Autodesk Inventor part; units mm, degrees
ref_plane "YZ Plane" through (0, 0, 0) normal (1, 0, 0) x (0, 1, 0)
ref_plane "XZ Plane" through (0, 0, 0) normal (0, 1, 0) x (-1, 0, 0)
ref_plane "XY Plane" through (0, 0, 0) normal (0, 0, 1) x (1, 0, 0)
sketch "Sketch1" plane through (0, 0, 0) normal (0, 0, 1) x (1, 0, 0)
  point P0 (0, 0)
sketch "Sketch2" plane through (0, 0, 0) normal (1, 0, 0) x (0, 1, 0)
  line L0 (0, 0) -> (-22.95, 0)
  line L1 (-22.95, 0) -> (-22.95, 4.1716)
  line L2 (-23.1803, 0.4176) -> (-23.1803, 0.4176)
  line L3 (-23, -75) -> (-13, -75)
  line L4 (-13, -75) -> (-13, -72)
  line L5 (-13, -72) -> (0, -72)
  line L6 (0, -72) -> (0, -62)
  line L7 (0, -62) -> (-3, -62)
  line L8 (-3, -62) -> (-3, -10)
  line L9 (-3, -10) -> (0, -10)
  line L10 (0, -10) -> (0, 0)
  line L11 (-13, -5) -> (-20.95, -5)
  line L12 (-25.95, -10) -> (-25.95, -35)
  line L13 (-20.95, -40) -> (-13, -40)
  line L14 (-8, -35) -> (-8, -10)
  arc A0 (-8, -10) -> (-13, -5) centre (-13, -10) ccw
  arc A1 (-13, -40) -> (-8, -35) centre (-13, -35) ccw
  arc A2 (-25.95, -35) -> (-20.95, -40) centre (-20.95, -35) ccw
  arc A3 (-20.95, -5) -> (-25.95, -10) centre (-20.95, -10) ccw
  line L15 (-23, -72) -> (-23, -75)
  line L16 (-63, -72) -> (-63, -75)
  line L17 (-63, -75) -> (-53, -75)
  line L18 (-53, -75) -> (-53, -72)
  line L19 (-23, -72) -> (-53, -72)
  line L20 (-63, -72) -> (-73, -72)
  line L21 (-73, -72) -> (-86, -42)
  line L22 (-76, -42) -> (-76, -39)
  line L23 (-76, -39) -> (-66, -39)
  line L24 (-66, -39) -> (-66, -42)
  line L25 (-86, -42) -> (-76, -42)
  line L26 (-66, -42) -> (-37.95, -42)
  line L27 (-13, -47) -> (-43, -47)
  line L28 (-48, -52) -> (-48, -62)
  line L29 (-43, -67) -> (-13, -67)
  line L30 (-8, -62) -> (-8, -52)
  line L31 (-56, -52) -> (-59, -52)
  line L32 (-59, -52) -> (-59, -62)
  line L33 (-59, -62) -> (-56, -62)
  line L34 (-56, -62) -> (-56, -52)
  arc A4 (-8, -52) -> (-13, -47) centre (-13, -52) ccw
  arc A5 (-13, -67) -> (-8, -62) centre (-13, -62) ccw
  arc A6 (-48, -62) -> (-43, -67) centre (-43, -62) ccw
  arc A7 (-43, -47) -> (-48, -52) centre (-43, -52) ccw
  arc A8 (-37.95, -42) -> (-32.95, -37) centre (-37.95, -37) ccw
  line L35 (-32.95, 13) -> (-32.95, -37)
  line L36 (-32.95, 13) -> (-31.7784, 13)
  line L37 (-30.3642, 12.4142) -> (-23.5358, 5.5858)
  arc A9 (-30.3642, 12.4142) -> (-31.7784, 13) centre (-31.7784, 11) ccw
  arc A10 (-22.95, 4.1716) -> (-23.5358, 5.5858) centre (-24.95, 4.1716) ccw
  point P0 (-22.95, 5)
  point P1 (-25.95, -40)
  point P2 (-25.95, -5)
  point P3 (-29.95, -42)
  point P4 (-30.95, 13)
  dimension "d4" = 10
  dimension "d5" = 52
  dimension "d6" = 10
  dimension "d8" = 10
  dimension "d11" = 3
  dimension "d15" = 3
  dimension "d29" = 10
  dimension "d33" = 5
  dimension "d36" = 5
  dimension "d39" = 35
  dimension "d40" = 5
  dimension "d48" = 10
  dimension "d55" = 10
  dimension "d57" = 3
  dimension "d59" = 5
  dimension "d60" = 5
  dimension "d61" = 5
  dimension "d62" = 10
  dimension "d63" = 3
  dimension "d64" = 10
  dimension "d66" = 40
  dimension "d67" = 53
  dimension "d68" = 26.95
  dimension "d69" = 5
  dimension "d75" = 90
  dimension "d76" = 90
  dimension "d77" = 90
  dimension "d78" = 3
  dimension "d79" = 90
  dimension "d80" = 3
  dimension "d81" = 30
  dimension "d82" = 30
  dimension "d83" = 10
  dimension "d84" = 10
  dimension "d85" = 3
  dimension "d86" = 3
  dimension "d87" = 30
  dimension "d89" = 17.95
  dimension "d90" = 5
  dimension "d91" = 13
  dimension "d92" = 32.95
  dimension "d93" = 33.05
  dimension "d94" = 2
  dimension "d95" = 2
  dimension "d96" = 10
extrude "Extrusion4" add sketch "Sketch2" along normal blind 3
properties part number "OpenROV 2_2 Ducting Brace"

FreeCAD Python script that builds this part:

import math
import FreeCAD as App
import Part
import Sketcher
from FreeCAD import Vector
Q = App.Units.Quantity

doc = App.newDocument("Part")
params = doc.addObject("Spreadsheet::Sheet", "Params")
for row, (alias, value) in enumerate([
    ("sketch1_radius", "2 mm"),
    ("sketch1_radius2", "5 mm"),
    ("sketch1_width", "10 mm"),
    ("sketch1_width2", "30 mm"),
    ("sketch1_width3", "13 mm"),
    ("pad1_length", "3 mm"),
], start=1):
    params.set(f"A{row}", alias)
    params.set(f"B{row}", "=" + value)
    params.setAlias(f"B{row}", alias)

body = doc.addObject("PartDesign::Body", "Body")

sketch1 = body.newObject("Sketcher::SketchObject", "Sketch")
sketch1.AttachmentSupport = (doc.getObject("YZ_Plane"), [""])
sketch1.MapMode = "FlatFace"
sketch1.addGeometry([
    Part.LineSegment(Vector(0, -10, 0), Vector(0, 0, 0)),
    Part.LineSegment(Vector(0, 0, 0), Vector(-22.9, 0, 0)),
    Part.LineSegment(Vector(-22.9, 0, 0), Vector(-22.9, 4.2, 0)),
    Part.ArcOfCircle(Part.Circle(Vector(-24.9, 4.2, 0), Vector(0, 0, 1), 2), math.radians(0), math.radians(45)),
    Part.LineSegment(Vector(-23.5, 5.6, 0), Vector(-30.4, 12.4, 0)),
    Part.ArcOfCircle(Part.Circle(Vector(-31.8, 11, 0), Vector(0, 0, 1), 2), math.radians(45), math.radians(90)),
    Part.LineSegment(Vector(-31.8, 13, 0), Vector(-33, 13, 0)),
    Part.LineSegment(Vector(-33, 13, 0), Vector(-33, -37, 0)),
    Part.ArcOfCircle(Part.Circle(Vector(-38, -37, 0), Vector(0, 0, 1), 5), math.radians(-90), math.radians(0)),
    Part.LineSegment(Vector(-38, -42, 0), Vector(-66, -42, 0)),
    Part.LineSegment(Vector(-66, -42, 0), Vector(-66, -39, 0)),
    Part.LineSegment(Vector(-66, -39, 0), Vector(-76, -39, 0)),
    Part.LineSegment(Vector(-76, -39, 0), Vector(-76, -42, 0)),
    Part.LineSegment(Vector(-76, -42, 0), Vector(-86, -42, 0)),
    Part.LineSegment(Vector(-86, -42, 0), Vector(-73, -72, 0)),
    Part.LineSegment(Vector(-73, -72, 0), Vector(-63, -72, 0)),
    Part.LineSegment(Vector(-63, -72, 0), Vector(-63, -75, 0)),
    Part.LineSegment(Vector(-63, -75, 0), Vector(-53, -75, 0)),
    Part.LineSegment(Vector(-53, -75, 0), Vector(-53, -72, 0)),
    Part.LineSegment(Vector(-53, -72, 0), Vector(-23, -72, 0)),
    Part.LineSegment(Vector(-23, -72, 0), Vector(-23, -75, 0)),
    Part.LineSegment(Vector(-23, -75, 0), Vector(-13, -75, 0)),
    Part.LineSegment(Vector(-13, -75, 0), Vector(-13, -72, 0)),
    Part.LineSegment(Vector(-13, -72, 0), Vector(0, -72, 0)),
    Part.LineSegment(Vector(0, -72, 0), Vector(0, -62, 0)),
    Part.LineSegment(Vector(0, -62, 0), Vector(-3, -62, 0)),
    Part.LineSegment(Vector(-3, -62, 0), Vector(-3, -10, 0)),
    Part.LineSegment(Vector(-3, -10, 0), Vector(0, -10, 0)),
    Part.LineSegment(Vector(-59, -52, 0), Vector(-56, -52, 0)),
    Part.LineSegment(Vector(-56, -52, 0), Vector(-56, -62, 0)),
    Part.LineSegment(Vector(-56, -62, 0), Vector(-59, -62, 0)),
    Part.LineSegment(Vector(-59, -62, 0), Vector(-59, -52, 0)),
    Part.LineSegment(Vector(-43, -47, 0), Vector(-13, -47, 0)),
    Part.ArcOfCircle(Part.Circle(Vector(-13, -52, 0), Vector(0, 0, 1), 5), math.radians(0), math.radians(90)),
    Part.LineSegment(Vector(-8, -52, 0), Vector(-8, -62, 0)),
    Part.ArcOfCircle(Part.Circle(Vector(-13, -62, 0), Vector(0, 0, 1), 5), math.radians(-90), math.radians(0)),
    Part.LineSegment(Vector(-13, -67, 0), Vector(-43, -67, 0)),
    Part.ArcOfCircle(Part.Circle(Vector(-43, -62, 0), Vector(0, 0, 1), 5), math.radians(180), math.radians(270)),
    Part.LineSegment(Vector(-48, -62, 0), Vector(-48, -52, 0)),
    Part.ArcOfCircle(Part.Circle(Vector(-43, -52, 0), Vector(0, 0, 1), 5), math.radians(90), math.radians(180)),
    Part.LineSegment(Vector(-20.9, -5, 0), Vector(-13, -5, 0)),
    Part.ArcOfCircle(Part.Circle(Vector(-13, -10, 0), Vector(0, 0, 1), 5), math.radians(0), math.radians(90)),
    Part.LineSegment(Vector(-8, -10, 0), Vector(-8, -35, 0)),
    Part.ArcOfCircle(Part.Circle(Vector(-13, -35, 0), Vector(0, 0, 1), 5), math.radians(-90), math.radians(0)),
    Part.LineSegment(Vector(-13, -40, 0), Vector(-20.9, -40, 0)),
    Part.ArcOfCircle(Part.Circle(Vector(-20.9, -35, 0), Vector(0, 0, 1), 5), math.radians(180), math.radians(270)),
    Part.LineSegment(Vector(-25.9, -35, 0), Vector(-25.9, -10, 0)),
    Part.ArcOfCircle(Part.Circle(Vector(-20.9, -10, 0), Vector(0, 0, 1), 5), math.radians(90), math.radians(180)),
], False)
sketch1.addConstraint([
    Sketcher.Constraint("Coincident", 0, 2, 1, 1),
    Sketcher.Constraint("Coincident", 1, 2, 2, 1),
    Sketcher.Constraint("Tangent", 2, 2, 3, 1),
    Sketcher.Constraint("Tangent", 3, 2, 4, 1),
    Sketcher.Constraint("Tangent", 4, 2, 5, 1),
    Sketcher.Constraint("Tangent", 5, 2, 6, 1),
    Sketcher.Constraint("Coincident", 6, 2, 7, 1),
    Sketcher.Constraint("Tangent", 7, 2, 8, 2),
    Sketcher.Constraint("Tangent", 8, 1, 9, 1),
    Sketcher.Constraint("Coincident", 9, 2, 10, 1),
    Sketcher.Constraint("Coincident", 10, 2, 11, 1),
    Sketcher.Constraint("Coincident", 11, 2, 12, 1),
    Sketcher.Constraint("Coincident", 12, 2, 13, 1),
    Sketcher.Constraint("Coincident", 13, 2, 14, 1),
    Sketcher.Constraint("Coincident", 14, 2, 15, 1),
    Sketcher.Constraint("Coincident", 15, 2, 16, 1),
    Sketcher.Constraint("Coincident", 16, 2, 17, 1),
    Sketcher.Constraint("Coincident", 17, 2, 18, 1),
    Sketcher.Constraint("Coincident", 18, 2, 19, 1),
    Sketcher.Constraint("Coincident", 19, 2, 20, 1),
    Sketcher.Constraint("Coincident", 20, 2, 21, 1),
    Sketcher.Constraint("Coincident", 21, 2, 22, 1),
    Sketcher.Constraint("Coincident", 22, 2, 23, 1),
    Sketcher.Constraint("Coincident", 23, 2, 24, 1),
    Sketcher.Constraint("Coincident", 24, 2, 25, 1),
    Sketcher.Constraint("Coincident", 25, 2, 26, 1),
    Sketcher.Constraint("Coincident", 26, 2, 27, 1),
    Sketcher.Constraint("Coincident", 27, 2, 0, 1),
    Sketcher.Constraint("Coincident", 28, 2, 29, 1),
    Sketcher.Constraint("Coincident", 29, 2, 30, 1),
    Sketcher.Constraint("Coincident", 30, 2, 31, 1),
    Sketcher.Constraint("Coincident", 31, 2, 28, 1),
    Sketcher.Constraint("Tangent", 32, 2, 33, 2),
    Sketcher.Constraint("Tangent", 33, 1, 34, 1),
    Sketcher.Constraint("Tangent", 34, 2, 35, 2),
    Sketcher.Constraint("Tangent", 35, 1, 36, 1),
    Sketcher.Constraint("Tangent", 36, 2, 37, 2),
    Sketcher.Constraint("Tangent", 37, 1, 38, 1),
    Sketcher.Constraint("Tangent", 38, 2, 39, 2),
    Sketcher.Constraint("Tangent", 39, 1, 32, 1),
    Sketcher.Constraint("Tangent", 40, 2, 41, 2),
    Sketcher.Constraint("Tangent", 41, 1, 42, 1),
    Sketcher.Constraint("Tangent", 42, 2, 43, 2),
    Sketcher.Constraint("Tangent", 43, 1, 44, 1),
    Sketcher.Constraint("Tangent", 44, 2, 45, 2),
    Sketcher.Constraint("Tangent", 45, 1, 46, 1),
    Sketcher.Constraint("Tangent", 46, 2, 47, 2),
    Sketcher.Constraint("Tangent", 47, 1, 40, 1),
    Sketcher.Constraint("Vertical", 0),
    Sketcher.Constraint("Horizontal", 1),
    Sketcher.Constraint("Vertical", 2),
    Sketcher.Constraint("Horizontal", 6),
    Sketcher.Constraint("Vertical", 7),
    Sketcher.Constraint("Horizontal", 9),
    Sketcher.Constraint("Vertical", 10),
    Sketcher.Constraint("Horizontal", 11),
    Sketcher.Constraint("Vertical", 12),
    Sketcher.Constraint("Horizontal", 13),
    Sketcher.Constraint("Horizontal", 15),
    Sketcher.Constraint("Vertical", 16),
    Sketcher.Constraint("Horizontal", 17),
    Sketcher.Constraint("Vertical", 18),
    Sketcher.Constraint("Horizontal", 19),
    Sketcher.Constraint("Vertical", 20),
    Sketcher.Constraint("Horizontal", 21),
    Sketcher.Constraint("Vertical", 22),
    Sketcher.Constraint("Horizontal", 23),
    Sketcher.Constraint("Vertical", 24),
    Sketcher.Constraint("Horizontal", 25),
    Sketcher.Constraint("Vertical", 26),
    Sketcher.Constraint("Horizontal", 27),
    Sketcher.Constraint("Horizontal", 28),
    Sketcher.Constraint("Vertical", 29),
    Sketcher.Constraint("Horizontal", 30),
    Sketcher.Constraint("Vertical", 31),
    Sketcher.Constraint("Horizontal", 32),
    Sketcher.Constraint("Vertical", 34),
    Sketcher.Constraint("Horizontal", 36),
    Sketcher.Constraint("Vertical", 38),
    Sketcher.Constraint("Horizontal", 40),
    Sketcher.Constraint("Vertical", 42),
    Sketcher.Constraint("Horizontal", 44),
    Sketcher.Constraint("Vertical", 46),
    Sketcher.Constraint("Coincident", 0, 2, -1, 1),
    Sketcher.Constraint("Equal", 3, 5),
    Sketcher.Constraint("Equal", 8, 33),
    Sketcher.Constraint("Equal", 33, 35),
    Sketcher.Constraint("Equal", 35, 37),
    Sketcher.Constraint("Equal", 37, 39),
    Sketcher.Constraint("Equal", 39, 41),
    Sketcher.Constraint("Equal", 41, 43),
    Sketcher.Constraint("Equal", 43, 45),
    Sketcher.Constraint("Equal", 45, 47),
    Sketcher.Constraint("PointOnObject", 23, 2, -2),
    Sketcher.Constraint("Horizontal", 9, 2, 12, 2),
    Sketcher.Constraint("Horizontal", 15, 2, 18, 2),
    Sketcher.Constraint("Horizontal", 17, 2, 20, 2),
    Sketcher.Constraint("Horizontal", 19, 2, 22, 2),
    Sketcher.Constraint("Horizontal", 37, 3, 24, 2),
    Sketcher.Constraint("Horizontal", 47, 3, 26, 2),
    Sketcher.Constraint("Horizontal", 39, 3, 28, 2),
    Sketcher.Constraint("Horizontal", 25, 2, 29, 2),
    Sketcher.Constraint("Vertical", 35, 3, 41, 3),
    Sketcher.Constraint("Vertical", 43, 3, 21, 2),
    Sketcher.Constraint("Equal", 11, 13),
    Sketcher.Constraint("Equal", 13, 15),
    Sketcher.Constraint("Equal", 15, 17),
    Sketcher.Constraint("Equal", 17, 21),
    Sketcher.Constraint("Equal", 27, 28),
    Sketcher.Constraint("Equal", 19, 32),
    Sketcher.Constraint("Equal", 21, 0),
    Sketcher.Constraint("Equal", 30, 10),
    Sketcher.Constraint("Equal", 12, 16),
    Sketcher.Constraint("Equal", 0, 24),
    Sketcher.Constraint("Equal", 24, 29),
    Sketcher.Constraint("Radius", 3, Q("2 mm")),
    Sketcher.Constraint("Radius", 8, Q("5 mm")),
    Sketcher.Constraint("DistanceX", 11, 2, 11, 1, Q("10 mm")),
    Sketcher.Constraint("DistanceX", 19, 1, 19, 2, Q("30 mm")),
    Sketcher.Constraint("DistanceX", 23, 1, 23, 2, Q("13 mm")),
    Sketcher.Constraint("DistanceX", 25, 2, 25, 1, Q("3 mm")),
    Sketcher.Constraint("DistanceY", 26, 1, 26, 2, Q("52 mm")),
    Sketcher.Constraint("DistanceY", 43, 3, -1, 1, Q("35 mm")),
    Sketcher.Constraint("DistanceY", -1, 1, 5, 2, Q("13 mm")),
    Sketcher.Constraint("DistanceX", 8, 3, 3, 3, Q("13 mm")),
    Sketcher.Constraint("DistanceY", 8, 3, 43, 3, Q("2 mm")),
    Sketcher.Constraint("DistanceX", 1, 2, 47, 3, Q("2 mm")),
    Sketcher.Constraint("DistanceX", 12, 2, 14, 2, Q("3 mm")),
    Sketcher.Constraint("DistanceX", 28, 2, 39, 3, Q("13 mm")),
    Sketcher.Constraint("DistanceX", 6, 2, -1, 1, Q("32.95 mm")),
    Sketcher.Constraint("Angle", 4, Q("135 deg")),
    Sketcher.Constraint("DistanceX", 6, 2, 6, 1, Q("1.1716 mm")),
])
sketch1.setExpression("Constraints[115]", "Params.sketch1_radius")
sketch1.setExpression("Constraints[116]", "Params.sketch1_radius2")
sketch1.setExpression("Constraints[117]", "Params.sketch1_width")
sketch1.setExpression("Constraints[118]", "Params.sketch1_width2")
sketch1.setExpression("Constraints[119]", "Params.sketch1_width3")
pad1 = body.newObject("PartDesign::Pad", "Pad")
pad1.Profile = sketch1
pad1.setExpression("Length", "Params.pad1_length")

doc.recompute()
